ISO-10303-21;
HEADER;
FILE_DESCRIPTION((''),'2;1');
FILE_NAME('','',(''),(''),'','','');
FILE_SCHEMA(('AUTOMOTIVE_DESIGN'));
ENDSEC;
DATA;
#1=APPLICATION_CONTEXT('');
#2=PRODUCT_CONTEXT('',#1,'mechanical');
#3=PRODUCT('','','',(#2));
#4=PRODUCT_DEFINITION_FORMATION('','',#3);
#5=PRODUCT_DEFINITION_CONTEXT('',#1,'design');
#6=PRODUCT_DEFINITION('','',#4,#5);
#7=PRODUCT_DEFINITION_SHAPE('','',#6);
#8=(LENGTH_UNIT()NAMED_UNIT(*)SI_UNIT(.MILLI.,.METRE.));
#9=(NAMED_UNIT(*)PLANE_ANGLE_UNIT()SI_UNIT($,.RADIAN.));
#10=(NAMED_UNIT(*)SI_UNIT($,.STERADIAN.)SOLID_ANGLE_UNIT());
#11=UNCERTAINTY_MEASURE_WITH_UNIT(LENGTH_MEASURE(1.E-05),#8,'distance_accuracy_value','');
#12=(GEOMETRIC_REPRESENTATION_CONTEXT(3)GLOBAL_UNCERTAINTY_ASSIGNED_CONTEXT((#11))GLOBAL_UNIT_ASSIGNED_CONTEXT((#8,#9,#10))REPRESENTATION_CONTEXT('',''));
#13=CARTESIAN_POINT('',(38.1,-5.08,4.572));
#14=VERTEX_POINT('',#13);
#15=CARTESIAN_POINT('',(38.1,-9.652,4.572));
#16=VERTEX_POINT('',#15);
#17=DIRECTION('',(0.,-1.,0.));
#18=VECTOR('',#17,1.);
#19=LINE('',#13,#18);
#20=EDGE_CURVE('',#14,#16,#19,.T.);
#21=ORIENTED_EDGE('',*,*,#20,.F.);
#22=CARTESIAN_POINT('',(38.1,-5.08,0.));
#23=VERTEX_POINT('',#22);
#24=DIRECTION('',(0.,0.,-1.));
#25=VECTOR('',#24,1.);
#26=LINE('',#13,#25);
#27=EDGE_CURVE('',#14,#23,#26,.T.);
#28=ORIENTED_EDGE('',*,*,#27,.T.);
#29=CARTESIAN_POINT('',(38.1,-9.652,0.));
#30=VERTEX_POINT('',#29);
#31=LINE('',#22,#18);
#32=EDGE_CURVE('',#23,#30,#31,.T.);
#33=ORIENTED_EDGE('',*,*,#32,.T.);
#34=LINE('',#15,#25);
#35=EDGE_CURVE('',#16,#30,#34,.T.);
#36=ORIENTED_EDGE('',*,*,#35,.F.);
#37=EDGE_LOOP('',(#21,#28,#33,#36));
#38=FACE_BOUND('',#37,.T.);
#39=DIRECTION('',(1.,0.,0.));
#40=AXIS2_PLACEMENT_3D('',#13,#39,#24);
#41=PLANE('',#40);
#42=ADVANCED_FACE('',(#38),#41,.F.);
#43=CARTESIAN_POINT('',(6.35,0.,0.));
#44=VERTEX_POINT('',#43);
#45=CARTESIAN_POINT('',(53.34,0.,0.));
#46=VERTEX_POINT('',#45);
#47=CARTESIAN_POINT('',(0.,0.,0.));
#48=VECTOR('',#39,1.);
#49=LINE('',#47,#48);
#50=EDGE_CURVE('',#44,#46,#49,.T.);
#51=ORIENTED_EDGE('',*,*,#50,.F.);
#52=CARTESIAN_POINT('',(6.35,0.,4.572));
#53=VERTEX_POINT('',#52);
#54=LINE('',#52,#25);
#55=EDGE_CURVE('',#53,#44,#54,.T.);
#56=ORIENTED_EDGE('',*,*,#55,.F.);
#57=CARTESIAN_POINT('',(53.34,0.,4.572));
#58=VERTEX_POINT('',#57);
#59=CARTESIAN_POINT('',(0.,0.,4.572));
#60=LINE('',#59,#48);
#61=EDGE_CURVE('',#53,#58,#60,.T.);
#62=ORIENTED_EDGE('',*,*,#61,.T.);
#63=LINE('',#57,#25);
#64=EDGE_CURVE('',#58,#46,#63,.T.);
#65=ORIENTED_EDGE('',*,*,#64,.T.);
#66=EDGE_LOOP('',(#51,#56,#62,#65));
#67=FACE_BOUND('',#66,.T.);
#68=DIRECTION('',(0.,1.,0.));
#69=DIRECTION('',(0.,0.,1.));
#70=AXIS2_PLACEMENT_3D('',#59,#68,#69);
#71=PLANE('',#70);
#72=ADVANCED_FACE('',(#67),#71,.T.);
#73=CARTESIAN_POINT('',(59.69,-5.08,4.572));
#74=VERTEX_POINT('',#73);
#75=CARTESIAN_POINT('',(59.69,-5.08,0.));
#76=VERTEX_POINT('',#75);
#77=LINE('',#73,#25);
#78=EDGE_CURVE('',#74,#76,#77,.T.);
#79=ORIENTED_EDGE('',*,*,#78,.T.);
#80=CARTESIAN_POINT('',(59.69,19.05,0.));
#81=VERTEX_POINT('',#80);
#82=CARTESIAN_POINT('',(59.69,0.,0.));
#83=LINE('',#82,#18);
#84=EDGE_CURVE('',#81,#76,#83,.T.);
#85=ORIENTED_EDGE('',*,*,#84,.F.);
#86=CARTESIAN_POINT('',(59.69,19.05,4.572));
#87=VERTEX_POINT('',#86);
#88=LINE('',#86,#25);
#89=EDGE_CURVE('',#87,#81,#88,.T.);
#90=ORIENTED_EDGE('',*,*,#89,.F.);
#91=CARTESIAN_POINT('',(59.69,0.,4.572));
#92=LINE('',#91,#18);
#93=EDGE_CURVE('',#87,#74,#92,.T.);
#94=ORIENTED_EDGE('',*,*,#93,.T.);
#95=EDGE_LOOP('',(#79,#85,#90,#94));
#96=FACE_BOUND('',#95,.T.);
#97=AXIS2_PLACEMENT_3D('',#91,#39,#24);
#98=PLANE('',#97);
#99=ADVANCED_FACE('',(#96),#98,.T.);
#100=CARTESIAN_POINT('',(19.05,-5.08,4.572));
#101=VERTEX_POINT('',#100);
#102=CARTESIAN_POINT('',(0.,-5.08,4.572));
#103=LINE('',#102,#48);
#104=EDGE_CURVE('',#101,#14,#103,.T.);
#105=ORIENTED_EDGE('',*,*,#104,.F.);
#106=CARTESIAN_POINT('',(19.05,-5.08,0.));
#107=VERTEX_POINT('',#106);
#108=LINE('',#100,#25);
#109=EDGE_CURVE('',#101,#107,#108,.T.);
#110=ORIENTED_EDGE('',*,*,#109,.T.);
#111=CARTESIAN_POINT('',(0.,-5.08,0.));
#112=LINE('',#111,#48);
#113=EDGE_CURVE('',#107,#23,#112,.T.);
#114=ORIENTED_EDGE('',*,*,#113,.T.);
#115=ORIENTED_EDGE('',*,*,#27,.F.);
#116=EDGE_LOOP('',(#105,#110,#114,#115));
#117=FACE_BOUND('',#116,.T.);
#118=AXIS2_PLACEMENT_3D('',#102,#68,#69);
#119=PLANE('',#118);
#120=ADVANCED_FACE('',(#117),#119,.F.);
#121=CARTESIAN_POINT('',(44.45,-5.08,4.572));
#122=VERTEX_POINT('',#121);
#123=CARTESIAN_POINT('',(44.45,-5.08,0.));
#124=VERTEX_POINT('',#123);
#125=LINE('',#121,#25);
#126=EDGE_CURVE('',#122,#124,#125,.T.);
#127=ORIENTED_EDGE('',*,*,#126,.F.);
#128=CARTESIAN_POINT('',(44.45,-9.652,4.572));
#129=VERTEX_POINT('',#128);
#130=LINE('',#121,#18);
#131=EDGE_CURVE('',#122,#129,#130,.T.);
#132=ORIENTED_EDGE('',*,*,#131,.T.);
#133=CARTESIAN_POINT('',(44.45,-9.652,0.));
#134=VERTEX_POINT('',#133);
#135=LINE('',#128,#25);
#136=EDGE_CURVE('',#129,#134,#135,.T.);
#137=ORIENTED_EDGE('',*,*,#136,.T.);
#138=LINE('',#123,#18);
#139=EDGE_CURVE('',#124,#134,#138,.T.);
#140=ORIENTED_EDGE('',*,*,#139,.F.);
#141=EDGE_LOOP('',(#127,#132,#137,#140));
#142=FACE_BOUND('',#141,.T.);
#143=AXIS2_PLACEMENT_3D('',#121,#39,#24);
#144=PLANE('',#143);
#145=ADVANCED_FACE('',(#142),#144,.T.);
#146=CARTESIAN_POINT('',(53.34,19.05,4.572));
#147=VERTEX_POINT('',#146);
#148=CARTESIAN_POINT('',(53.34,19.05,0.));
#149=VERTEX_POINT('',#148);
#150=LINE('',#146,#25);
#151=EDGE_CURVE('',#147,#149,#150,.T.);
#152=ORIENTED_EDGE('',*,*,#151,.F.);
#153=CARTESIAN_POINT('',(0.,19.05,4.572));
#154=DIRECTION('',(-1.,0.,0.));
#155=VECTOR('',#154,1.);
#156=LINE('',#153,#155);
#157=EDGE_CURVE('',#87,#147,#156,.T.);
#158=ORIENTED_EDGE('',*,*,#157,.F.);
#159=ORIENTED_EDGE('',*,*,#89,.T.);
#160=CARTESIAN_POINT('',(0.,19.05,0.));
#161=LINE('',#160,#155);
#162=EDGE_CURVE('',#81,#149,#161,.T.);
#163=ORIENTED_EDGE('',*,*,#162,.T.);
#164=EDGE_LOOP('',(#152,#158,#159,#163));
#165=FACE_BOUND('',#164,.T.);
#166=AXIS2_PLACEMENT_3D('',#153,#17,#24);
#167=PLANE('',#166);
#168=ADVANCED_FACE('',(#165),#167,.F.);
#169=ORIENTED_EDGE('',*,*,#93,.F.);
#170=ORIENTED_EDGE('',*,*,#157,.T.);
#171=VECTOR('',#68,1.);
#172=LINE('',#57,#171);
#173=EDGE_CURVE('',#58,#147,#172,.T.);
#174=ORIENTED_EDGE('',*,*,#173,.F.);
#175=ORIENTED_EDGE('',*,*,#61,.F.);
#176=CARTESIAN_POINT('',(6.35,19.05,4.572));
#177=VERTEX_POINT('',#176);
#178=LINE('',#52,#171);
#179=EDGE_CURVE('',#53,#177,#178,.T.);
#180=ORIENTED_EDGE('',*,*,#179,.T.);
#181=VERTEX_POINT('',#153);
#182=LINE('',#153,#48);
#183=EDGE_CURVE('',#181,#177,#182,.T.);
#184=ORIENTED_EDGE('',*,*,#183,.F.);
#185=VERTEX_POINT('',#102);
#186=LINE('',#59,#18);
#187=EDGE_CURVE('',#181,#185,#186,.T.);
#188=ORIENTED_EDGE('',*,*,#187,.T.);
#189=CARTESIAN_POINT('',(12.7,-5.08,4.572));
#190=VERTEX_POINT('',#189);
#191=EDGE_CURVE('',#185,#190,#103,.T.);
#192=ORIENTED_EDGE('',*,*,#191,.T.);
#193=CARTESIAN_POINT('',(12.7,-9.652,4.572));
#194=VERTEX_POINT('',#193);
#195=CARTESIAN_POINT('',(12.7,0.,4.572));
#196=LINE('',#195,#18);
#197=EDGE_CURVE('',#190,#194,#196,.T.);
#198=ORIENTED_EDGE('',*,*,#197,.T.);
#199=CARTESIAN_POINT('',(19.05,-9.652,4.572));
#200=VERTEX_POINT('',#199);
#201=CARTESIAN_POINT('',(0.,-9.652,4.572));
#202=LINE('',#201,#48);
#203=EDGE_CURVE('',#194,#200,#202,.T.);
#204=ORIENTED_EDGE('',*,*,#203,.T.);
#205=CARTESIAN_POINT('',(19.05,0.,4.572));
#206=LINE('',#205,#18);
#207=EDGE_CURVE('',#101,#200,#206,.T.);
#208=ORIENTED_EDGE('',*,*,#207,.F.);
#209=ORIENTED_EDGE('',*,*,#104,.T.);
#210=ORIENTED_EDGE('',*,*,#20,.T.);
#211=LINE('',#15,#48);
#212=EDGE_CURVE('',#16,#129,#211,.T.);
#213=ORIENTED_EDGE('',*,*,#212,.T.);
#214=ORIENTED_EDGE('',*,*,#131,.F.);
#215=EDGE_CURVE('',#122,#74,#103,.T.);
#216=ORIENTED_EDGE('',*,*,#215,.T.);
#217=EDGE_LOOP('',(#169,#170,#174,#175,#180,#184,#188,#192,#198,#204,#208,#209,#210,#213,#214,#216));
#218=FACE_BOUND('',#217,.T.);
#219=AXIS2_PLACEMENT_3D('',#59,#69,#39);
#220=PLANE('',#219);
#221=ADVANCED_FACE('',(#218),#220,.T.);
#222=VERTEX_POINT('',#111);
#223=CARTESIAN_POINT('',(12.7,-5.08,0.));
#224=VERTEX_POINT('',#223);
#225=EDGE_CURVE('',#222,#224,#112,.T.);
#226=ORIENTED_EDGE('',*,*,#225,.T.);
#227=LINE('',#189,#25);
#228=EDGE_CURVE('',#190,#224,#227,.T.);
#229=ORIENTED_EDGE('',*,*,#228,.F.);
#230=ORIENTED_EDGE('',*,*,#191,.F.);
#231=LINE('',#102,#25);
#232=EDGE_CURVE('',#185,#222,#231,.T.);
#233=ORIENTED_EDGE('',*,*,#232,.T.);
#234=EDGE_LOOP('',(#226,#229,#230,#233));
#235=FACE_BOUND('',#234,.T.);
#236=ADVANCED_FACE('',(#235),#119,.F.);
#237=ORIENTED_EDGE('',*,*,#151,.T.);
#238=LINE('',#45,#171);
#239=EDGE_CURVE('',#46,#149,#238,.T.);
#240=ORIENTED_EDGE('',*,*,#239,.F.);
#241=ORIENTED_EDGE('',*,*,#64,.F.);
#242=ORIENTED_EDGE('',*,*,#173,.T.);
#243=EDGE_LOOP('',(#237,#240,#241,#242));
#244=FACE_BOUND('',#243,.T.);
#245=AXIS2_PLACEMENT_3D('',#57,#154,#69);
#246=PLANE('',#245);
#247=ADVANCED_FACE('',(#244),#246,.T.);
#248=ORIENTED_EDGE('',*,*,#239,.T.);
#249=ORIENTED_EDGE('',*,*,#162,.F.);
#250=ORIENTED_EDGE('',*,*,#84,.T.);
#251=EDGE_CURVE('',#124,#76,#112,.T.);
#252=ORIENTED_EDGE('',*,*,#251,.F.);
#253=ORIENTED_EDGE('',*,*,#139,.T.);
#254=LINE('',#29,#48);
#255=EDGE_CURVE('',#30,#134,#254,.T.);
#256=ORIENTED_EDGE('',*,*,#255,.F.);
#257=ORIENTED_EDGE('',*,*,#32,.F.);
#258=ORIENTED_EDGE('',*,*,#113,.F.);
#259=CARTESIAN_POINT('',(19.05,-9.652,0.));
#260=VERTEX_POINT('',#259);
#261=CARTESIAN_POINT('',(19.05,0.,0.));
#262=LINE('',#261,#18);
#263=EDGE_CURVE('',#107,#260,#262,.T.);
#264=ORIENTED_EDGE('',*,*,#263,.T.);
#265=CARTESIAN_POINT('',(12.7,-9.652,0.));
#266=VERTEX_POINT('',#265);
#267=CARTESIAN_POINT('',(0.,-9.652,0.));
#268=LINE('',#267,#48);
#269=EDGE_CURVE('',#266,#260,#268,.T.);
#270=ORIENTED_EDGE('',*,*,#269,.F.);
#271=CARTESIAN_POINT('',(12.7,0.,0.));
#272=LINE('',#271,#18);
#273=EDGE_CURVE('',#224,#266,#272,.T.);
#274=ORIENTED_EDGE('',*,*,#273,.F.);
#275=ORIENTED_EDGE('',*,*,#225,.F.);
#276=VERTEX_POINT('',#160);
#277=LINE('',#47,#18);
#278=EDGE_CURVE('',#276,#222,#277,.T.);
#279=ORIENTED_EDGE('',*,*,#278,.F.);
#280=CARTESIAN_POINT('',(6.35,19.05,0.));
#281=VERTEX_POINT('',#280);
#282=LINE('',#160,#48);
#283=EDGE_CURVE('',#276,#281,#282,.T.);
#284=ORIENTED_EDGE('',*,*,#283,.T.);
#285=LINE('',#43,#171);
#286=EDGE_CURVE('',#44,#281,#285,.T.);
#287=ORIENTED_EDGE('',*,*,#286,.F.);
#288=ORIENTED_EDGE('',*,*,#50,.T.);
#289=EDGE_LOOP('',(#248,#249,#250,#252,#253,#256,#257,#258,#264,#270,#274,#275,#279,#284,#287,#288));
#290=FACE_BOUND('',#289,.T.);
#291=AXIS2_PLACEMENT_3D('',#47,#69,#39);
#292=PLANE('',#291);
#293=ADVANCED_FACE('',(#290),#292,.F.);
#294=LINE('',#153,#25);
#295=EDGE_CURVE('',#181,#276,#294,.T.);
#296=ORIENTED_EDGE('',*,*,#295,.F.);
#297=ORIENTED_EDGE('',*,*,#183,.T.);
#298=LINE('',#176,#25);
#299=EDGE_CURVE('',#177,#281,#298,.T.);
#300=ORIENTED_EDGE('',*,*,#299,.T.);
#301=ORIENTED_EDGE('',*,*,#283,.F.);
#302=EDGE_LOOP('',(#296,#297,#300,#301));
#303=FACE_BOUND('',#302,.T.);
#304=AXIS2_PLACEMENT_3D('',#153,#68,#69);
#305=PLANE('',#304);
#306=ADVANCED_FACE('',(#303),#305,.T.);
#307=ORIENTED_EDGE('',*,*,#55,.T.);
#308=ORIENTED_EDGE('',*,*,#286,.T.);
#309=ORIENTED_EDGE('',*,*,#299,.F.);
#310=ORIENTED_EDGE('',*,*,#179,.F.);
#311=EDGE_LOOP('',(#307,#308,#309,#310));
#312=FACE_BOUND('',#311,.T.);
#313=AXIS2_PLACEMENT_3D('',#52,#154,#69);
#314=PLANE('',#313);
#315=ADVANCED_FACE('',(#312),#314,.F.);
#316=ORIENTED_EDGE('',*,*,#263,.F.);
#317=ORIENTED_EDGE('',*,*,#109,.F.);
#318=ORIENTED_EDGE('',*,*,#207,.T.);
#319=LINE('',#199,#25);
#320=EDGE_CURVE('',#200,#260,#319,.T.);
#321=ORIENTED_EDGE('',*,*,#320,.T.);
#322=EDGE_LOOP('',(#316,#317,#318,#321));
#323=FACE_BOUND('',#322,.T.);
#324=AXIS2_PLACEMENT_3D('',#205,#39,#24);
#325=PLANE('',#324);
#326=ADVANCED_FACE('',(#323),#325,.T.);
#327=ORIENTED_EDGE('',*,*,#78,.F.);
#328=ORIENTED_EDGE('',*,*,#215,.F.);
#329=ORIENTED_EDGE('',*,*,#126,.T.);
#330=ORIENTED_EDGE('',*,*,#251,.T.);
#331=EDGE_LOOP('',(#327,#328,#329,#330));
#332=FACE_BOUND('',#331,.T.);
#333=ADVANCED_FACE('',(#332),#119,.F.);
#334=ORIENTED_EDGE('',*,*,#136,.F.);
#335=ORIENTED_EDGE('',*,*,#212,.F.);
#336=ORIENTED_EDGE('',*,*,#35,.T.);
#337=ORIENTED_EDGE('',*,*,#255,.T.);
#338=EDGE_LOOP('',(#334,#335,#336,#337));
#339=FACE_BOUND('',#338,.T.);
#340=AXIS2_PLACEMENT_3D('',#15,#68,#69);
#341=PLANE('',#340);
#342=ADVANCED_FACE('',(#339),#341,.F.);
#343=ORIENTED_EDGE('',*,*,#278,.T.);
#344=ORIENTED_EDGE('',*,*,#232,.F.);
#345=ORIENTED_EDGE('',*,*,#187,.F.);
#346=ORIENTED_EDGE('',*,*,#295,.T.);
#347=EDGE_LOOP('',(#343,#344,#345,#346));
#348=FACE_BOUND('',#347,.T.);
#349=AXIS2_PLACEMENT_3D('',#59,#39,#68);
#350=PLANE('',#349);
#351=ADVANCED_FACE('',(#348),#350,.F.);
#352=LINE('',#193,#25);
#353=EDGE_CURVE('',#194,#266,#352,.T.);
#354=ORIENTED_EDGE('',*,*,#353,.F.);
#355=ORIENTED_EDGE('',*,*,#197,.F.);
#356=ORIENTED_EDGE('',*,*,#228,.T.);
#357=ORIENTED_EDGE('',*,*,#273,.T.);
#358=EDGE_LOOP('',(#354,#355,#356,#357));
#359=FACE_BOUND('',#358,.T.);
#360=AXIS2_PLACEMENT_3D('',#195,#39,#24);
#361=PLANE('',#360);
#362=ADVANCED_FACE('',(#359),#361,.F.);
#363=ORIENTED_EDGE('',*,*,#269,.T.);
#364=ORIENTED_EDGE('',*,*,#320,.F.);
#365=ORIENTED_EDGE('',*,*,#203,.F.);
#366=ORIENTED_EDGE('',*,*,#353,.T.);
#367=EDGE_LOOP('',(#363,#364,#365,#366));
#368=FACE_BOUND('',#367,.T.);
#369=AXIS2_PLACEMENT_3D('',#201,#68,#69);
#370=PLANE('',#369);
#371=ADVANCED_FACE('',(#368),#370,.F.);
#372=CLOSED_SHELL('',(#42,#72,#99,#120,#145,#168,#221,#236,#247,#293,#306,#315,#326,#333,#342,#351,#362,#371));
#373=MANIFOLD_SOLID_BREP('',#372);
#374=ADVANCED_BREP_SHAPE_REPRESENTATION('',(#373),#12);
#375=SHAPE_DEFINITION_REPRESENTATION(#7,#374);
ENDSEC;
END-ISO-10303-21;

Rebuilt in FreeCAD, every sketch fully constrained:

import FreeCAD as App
import Part
import Sketcher

V = App.Vector
Q = App.Units.Quantity

doc = App.newDocument("Part")
body = doc.addObject("PartDesign::Body", "Body")

sketch1 = body.newObject("Sketcher::SketchObject", "Sketch")
sketch1.AttachmentSupport = (doc.getObject("XY_Plane"), [""])
sketch1.MapMode = "FlatFace"
sketch1.addGeometry(Part.LineSegment(V(6.35, 0, 0), V(6.35, 19.05, 0)), False)
sketch1.addGeometry(Part.LineSegment(V(6.35, 19.05, 0), V(0, 19.05, 0)), False)
sketch1.addGeometry(Part.LineSegment(V(0, 19.05, 0), V(0, -5.08, 0)), False)
sketch1.addGeometry(Part.LineSegment(V(0, -5.08, 0), V(12.7, -5.08, 0)), False)
sketch1.addGeometry(Part.LineSegment(V(12.7, -5.08, 0), V(12.7, -9.652, 0)), False)
sketch1.addGeometry(Part.LineSegment(V(12.7, -9.652, 0), V(19.05, -9.652, 0)), False)
sketch1.addGeometry(Part.LineSegment(V(19.05, -9.652, 0), V(19.05, -5.08, 0)), False)
sketch1.addGeometry(Part.LineSegment(V(19.05, -5.08, 0), V(38.1, -5.08, 0)), False)
sketch1.addGeometry(Part.LineSegment(V(38.1, -5.08, 0), V(38.1, -9.652, 0)), False)
sketch1.addGeometry(Part.LineSegment(V(38.1, -9.652, 0), V(44.45, -9.652, 0)), False)
sketch1.addGeometry(Part.LineSegment(V(44.45, -9.652, 0), V(44.45, -5.08, 0)), False)
sketch1.addGeometry(Part.LineSegment(V(44.45, -5.08, 0), V(59.69, -5.08, 0)), False)
sketch1.addGeometry(Part.LineSegment(V(59.69, -5.08, 0), V(59.69, 19.05, 0)), False)
sketch1.addGeometry(Part.LineSegment(V(59.69, 19.05, 0), V(53.34, 19.05, 0)), False)
sketch1.addGeometry(Part.LineSegment(V(53.34, 19.05, 0), V(53.34, 0, 0)), False)
sketch1.addGeometry(Part.LineSegment(V(53.34, 0, 0), V(6.35, 0, 0)), False)
sketch1.addConstraint(Sketcher.Constraint("Coincident", 0, 2, 1, 1))
sketch1.addConstraint(Sketcher.Constraint("Coincident", 1, 2, 2, 1))
sketch1.addConstraint(Sketcher.Constraint("Coincident", 2, 2, 3, 1))
sketch1.addConstraint(Sketcher.Constraint("Coincident", 3, 2, 4, 1))
sketch1.addConstraint(Sketcher.Constraint("Coincident", 4, 2, 5, 1))
sketch1.addConstraint(Sketcher.Constraint("Coincident", 5, 2, 6, 1))
sketch1.addConstraint(Sketcher.Constraint("Coincident", 6, 2, 7, 1))
sketch1.addConstraint(Sketcher.Constraint("Coincident", 7, 2, 8, 1))
sketch1.addConstraint(Sketcher.Constraint("Coincident", 8, 2, 9, 1))
sketch1.addConstraint(Sketcher.Constraint("Coincident", 9, 2, 10, 1))
sketch1.addConstraint(Sketcher.Constraint("Coincident", 10, 2, 11, 1))
sketch1.addConstraint(Sketcher.Constraint("Coincident", 11, 2, 12, 1))
sketch1.addConstraint(Sketcher.Constraint("Coincident", 12, 2, 13, 1))
sketch1.addConstraint(Sketcher.Constraint("Coincident", 13, 2, 14, 1))
sketch1.addConstraint(Sketcher.Constraint("Coincident", 14, 2, 15, 1))
sketch1.addConstraint(Sketcher.Constraint("Coincident", 15, 2, 0, 1))
sketch1.addConstraint(Sketcher.Constraint("Vertical", 0))
sketch1.addConstraint(Sketcher.Constraint("Horizontal", 1))
sketch1.addConstraint(Sketcher.Constraint("Vertical", 2))
sketch1.addConstraint(Sketcher.Constraint("Horizontal", 3))
sketch1.addConstraint(Sketcher.Constraint("Vertical", 4))
sketch1.addConstraint(Sketcher.Constraint("Horizontal", 5))
sketch1.addConstraint(Sketcher.Constraint("Vertical", 6))
sketch1.addConstraint(Sketcher.Constraint("Horizontal", 7))
sketch1.addConstraint(Sketcher.Constraint("Vertical", 8))
sketch1.addConstraint(Sketcher.Constraint("Horizontal", 9))
sketch1.addConstraint(Sketcher.Constraint("Vertical", 10))
sketch1.addConstraint(Sketcher.Constraint("Horizontal", 11))
sketch1.addConstraint(Sketcher.Constraint("Vertical", 12))
sketch1.addConstraint(Sketcher.Constraint("Horizontal", 13))
sketch1.addConstraint(Sketcher.Constraint("Vertical", 14))
sketch1.addConstraint(Sketcher.Constraint("Horizontal", 15))
sketch1.addConstraint(Sketcher.Constraint("PointOnObject", 1, 2, -2))
sketch1.addConstraint(Sketcher.Constraint("PointOnObject", 14, 2, -1))
sketch1.addConstraint(Sketcher.Constraint("Horizontal", 3, 2, 6, 2))
sketch1.addConstraint(Sketcher.Constraint("Horizontal", 5, 2, 8, 2))
sketch1.addConstraint(Sketcher.Constraint("Horizontal", 7, 2, 10, 2))
sketch1.addConstraint(Sketcher.Constraint("Horizontal", 1, 2, 12, 2))
sketch1.addConstraint(Sketcher.Constraint("Equal", 1, 5))
sketch1.addConstraint(Sketcher.Constraint("Equal", 5, 9))
sketch1.addConstraint(Sketcher.Constraint("Equal", 9, 13))
sketch1.addConstraint(Sketcher.Constraint("Equal", 7, 0))
sketch1.addConstraint(Sketcher.Constraint("DistanceX", 3, 1, 3, 2, Q("0.5 in")))
sketch1.addConstraint(Sketcher.Constraint("DistanceX", 11, 1, 11, 2, Q("0.6 in")))
sketch1.addConstraint(Sketcher.Constraint("DistanceX", 3, 2, 7, 2, Q("1 in")))
sketch1.addConstraint(Sketcher.Constraint("DistanceX", 1, 2, 1, 1, Q("0.25 in")))
sketch1.addConstraint(Sketcher.Constraint("DistanceY", 2, 2, 2, 1, Q("0.95 in")))
sketch1.addConstraint(Sketcher.Constraint("DistanceY", 4, 2, 4, 1, Q("0.18 in")))
pad1 = body.newObject("PartDesign::Pad", "Pad")
pad1.Profile = sketch1
pad1.Length = Q("0.18 in")

doc.recompute()
